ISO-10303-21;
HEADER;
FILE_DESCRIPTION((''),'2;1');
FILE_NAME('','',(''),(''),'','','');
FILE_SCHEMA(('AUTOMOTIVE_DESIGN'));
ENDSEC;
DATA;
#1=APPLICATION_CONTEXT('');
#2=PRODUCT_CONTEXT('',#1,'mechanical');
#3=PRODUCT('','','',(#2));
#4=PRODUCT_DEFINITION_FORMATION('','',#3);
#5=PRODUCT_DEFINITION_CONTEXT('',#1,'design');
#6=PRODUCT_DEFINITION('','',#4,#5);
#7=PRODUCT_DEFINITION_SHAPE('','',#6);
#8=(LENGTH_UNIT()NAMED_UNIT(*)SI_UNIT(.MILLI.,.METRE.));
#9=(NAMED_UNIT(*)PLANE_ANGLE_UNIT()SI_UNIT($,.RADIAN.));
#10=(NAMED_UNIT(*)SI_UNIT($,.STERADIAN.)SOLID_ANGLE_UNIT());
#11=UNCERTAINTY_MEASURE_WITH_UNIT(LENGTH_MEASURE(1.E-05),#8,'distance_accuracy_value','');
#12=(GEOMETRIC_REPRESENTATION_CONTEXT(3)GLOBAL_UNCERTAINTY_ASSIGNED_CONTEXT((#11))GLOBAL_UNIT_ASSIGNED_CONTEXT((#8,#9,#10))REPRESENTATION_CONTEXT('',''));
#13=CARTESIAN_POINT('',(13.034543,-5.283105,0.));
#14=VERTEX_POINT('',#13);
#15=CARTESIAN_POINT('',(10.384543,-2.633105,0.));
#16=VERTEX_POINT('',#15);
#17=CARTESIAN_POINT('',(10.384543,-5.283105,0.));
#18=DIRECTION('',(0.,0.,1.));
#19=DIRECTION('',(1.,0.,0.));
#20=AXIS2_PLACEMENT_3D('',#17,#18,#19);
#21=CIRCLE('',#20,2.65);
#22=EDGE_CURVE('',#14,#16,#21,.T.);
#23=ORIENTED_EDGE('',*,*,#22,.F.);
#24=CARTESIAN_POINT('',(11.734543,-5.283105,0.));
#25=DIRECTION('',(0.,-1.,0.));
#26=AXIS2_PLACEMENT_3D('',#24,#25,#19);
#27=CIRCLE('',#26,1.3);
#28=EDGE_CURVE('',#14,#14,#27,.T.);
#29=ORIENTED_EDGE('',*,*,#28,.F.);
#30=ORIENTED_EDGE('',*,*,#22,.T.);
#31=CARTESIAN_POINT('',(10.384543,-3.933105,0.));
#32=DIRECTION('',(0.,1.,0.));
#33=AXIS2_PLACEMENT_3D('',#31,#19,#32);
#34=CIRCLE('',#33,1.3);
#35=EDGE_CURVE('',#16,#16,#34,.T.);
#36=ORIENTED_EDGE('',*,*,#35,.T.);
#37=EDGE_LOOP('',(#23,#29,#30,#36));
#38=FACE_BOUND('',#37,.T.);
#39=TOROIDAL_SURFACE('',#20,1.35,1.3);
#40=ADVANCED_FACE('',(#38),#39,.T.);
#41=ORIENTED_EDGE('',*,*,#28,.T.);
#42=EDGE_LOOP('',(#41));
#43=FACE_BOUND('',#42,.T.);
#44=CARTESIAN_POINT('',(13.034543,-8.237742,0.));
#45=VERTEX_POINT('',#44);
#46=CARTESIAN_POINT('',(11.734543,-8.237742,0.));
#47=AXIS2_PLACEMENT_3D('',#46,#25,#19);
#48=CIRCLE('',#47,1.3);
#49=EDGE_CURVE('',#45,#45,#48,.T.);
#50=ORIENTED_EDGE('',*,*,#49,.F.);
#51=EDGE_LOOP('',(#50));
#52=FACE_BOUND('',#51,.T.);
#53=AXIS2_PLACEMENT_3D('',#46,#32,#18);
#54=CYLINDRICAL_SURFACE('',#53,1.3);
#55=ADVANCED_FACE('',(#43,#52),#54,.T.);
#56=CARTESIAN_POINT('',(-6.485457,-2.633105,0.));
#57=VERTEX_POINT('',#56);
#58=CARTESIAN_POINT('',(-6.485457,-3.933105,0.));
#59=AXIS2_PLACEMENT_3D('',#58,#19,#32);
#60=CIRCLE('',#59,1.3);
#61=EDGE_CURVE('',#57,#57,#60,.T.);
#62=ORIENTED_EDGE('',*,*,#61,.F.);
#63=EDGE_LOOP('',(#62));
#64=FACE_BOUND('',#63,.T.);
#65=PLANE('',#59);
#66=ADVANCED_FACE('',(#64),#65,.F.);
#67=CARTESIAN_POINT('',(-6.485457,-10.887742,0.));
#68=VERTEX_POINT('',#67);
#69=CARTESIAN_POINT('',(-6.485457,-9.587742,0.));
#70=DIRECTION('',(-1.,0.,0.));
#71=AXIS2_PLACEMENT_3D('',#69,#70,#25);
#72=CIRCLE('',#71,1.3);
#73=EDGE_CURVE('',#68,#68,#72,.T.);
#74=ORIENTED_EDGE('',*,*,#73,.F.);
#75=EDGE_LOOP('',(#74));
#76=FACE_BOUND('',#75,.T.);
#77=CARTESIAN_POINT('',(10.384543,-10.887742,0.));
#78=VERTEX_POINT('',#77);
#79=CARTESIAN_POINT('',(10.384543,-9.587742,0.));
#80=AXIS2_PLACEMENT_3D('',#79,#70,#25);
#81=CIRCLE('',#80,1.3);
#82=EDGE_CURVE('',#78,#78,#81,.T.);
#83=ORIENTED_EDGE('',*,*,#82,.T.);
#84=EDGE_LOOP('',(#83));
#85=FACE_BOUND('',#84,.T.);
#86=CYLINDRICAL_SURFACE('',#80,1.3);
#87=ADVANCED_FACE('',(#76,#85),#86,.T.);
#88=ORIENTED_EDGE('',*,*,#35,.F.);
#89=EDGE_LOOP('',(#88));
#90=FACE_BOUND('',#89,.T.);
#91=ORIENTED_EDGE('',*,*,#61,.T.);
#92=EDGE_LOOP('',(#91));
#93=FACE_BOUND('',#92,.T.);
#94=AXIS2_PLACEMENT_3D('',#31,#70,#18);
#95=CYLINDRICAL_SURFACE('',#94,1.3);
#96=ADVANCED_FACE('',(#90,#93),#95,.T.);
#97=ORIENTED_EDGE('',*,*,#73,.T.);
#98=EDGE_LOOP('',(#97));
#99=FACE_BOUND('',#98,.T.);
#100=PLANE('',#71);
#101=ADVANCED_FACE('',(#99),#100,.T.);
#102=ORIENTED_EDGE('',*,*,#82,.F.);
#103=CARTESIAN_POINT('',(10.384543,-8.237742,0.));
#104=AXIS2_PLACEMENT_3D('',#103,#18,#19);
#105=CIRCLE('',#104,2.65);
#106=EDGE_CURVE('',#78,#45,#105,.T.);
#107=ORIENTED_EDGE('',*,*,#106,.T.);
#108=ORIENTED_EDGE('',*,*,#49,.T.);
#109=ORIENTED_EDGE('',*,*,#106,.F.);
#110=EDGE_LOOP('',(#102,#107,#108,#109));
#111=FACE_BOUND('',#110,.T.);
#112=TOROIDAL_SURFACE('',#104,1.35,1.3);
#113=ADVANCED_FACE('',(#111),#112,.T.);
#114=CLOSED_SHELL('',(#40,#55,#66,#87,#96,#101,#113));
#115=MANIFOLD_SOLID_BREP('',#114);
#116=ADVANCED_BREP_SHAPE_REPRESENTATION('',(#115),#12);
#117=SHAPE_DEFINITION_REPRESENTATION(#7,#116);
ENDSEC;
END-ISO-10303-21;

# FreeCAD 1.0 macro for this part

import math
import FreeCAD as App
import Part
import Sketcher
from FreeCAD import Vector

doc = App.newDocument("Part")
body = doc.addObject("PartDesign::Body", "Body")

# Sketch on YZ plane
sketch1 = body.newObject("Sketcher::SketchObject", "Sketch")
sketch1.AttachmentSupport = (doc.getObject("YZ_Plane"), [""])
sketch1.MapMode = "FlatFace"
sketch1.AttachmentOffset = App.Placement(Vector(0, 0, -6.485457), App.Rotation())
sketch1.addGeometry(Part.Circle(Vector(-9.6, 0, 0), Vector(0, 0, 1), 1.3), False)
sketch1.addConstraint([
    Sketcher.Constraint("PointOnObject", 0, 3, -1),
    Sketcher.Constraint("Diameter", 0, 2.6),
    Sketcher.Constraint("DistanceX", 0, 3, -1, 1, 9.587742),
])

# Sketch on XY plane
sketch2 = body.newObject("Sketcher::SketchObject", "Sketch001")
sketch2.AttachmentSupport = (doc.getObject("XY_Plane"), [""])
sketch2.MapMode = "FlatFace"
sketch2.addGeometry([
    Part.LineSegment(Vector(-6.5, -9.6, 0), Vector(10.4, -9.6, 0)),  # 0
    Part.ArcOfCircle(Part.Circle(Vector(10.4, -8.2, 0), Vector(0, 0, 1), 1.4), math.radians(-90), math.radians(0)),  # 1
    Part.LineSegment(Vector(11.7, -8.2, 0), Vector(11.7, -5.3, 0)),  # 2
    Part.ArcOfCircle(Part.Circle(Vector(10.4, -5.3, 0), Vector(0, 0, 1), 1.4), math.radians(0), math.radians(90)),  # 3
    Part.LineSegment(Vector(10.4, -3.9, 0), Vector(-6.5, -3.9, 0)),  # 4
], False)
sketch2.addConstraint([
    Sketcher.Constraint("Tangent", 0, 2, 1, 1),
    Sketcher.Constraint("Tangent", 1, 2, 2, 1),
    Sketcher.Constraint("Tangent", 2, 2, 3, 1),
    Sketcher.Constraint("Tangent", 3, 2, 4, 1),
    Sketcher.Constraint("Horizontal", 0),
    Sketcher.Constraint("Vertical", 2),
    Sketcher.Constraint("Horizontal", 4),
    Sketcher.Constraint("Equal", 1, 3),
    Sketcher.Constraint("Vertical", 0, 1, 4, 2),
    Sketcher.Constraint("Radius", 1, 1.35),
    Sketcher.Constraint("DistanceX", 0, 1, 0, 2, 16.87),
    Sketcher.Constraint("DistanceY", 2, 1, 2, 2, 2.954638),
    Sketcher.Constraint("DistanceX", -1, 1, 1, 3, 10.384543),
    Sketcher.Constraint("DistanceY", 1, 3, -1, 1, 8.237742),
])
doc.recompute()

additivepipe = body.newObject("PartDesign::AdditivePipe", "AdditivePipe")
additivepipe.Profile = sketch1
additivepipe.Spine = (sketch2, ["Edge1", "Edge2", "Edge3", "Edge4", "Edge5"])

doc.recompute()
